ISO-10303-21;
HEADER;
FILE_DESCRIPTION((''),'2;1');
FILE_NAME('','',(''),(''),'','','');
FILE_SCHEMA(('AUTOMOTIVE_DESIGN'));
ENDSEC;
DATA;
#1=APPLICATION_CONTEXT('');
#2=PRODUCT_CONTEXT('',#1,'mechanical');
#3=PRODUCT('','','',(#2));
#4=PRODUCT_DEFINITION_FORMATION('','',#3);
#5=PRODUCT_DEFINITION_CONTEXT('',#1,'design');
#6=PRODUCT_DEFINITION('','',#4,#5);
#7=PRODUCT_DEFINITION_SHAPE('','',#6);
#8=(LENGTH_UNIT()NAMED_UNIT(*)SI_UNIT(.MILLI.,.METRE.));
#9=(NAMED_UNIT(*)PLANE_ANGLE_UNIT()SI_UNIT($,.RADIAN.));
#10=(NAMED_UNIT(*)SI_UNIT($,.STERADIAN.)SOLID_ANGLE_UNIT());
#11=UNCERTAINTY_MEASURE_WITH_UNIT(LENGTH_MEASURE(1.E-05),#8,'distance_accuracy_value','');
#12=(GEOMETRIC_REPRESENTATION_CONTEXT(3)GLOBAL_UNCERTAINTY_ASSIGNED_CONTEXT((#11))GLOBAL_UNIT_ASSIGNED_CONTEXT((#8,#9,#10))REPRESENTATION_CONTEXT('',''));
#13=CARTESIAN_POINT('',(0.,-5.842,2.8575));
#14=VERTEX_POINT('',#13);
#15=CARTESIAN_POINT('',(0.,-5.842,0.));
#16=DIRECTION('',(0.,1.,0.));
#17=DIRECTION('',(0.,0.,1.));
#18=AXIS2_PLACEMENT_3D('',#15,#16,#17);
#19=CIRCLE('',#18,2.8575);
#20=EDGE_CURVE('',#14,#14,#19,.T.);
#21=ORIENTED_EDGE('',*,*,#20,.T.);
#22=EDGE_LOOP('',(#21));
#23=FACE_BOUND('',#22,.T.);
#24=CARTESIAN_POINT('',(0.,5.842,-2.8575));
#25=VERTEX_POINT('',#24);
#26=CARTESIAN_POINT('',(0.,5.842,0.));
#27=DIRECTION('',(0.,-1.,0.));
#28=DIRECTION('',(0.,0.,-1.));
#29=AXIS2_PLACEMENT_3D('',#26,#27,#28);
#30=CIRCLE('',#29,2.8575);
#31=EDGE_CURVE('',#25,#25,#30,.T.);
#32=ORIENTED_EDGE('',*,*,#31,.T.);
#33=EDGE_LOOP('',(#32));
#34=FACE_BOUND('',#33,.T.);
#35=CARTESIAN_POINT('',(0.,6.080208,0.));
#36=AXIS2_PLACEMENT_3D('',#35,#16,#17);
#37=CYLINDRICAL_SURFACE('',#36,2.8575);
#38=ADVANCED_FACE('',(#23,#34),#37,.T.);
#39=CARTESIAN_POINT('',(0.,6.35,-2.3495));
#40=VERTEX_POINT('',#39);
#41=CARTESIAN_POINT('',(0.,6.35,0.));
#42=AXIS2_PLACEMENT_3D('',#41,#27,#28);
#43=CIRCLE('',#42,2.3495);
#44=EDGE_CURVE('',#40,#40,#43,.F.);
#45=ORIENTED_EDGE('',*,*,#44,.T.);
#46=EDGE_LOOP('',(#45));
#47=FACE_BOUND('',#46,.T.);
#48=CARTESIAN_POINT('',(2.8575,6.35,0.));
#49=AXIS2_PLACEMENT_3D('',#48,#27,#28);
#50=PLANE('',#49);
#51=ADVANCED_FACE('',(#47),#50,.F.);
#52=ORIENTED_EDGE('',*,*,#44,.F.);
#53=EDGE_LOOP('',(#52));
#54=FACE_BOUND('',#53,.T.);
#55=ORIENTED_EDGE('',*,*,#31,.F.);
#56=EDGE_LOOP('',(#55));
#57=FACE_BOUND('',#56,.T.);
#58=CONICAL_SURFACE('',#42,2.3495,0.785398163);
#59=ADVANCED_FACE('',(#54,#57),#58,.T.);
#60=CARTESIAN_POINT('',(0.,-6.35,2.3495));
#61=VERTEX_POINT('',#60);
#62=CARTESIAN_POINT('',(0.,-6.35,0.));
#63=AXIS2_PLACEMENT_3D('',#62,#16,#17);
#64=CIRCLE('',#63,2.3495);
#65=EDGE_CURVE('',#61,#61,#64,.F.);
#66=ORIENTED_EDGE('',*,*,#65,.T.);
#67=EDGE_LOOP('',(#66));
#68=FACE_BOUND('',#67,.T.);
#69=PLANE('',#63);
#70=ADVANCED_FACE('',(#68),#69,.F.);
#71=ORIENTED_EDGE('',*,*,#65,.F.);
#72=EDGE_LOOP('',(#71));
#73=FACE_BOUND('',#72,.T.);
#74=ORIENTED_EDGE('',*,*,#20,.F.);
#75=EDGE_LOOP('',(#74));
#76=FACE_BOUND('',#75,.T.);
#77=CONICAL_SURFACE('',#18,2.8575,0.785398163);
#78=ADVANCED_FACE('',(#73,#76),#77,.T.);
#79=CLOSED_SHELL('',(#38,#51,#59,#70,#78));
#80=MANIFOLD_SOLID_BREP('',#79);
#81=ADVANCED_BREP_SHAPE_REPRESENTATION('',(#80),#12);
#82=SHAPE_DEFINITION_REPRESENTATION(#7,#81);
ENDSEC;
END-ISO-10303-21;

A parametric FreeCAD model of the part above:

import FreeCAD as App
import Part
import Sketcher

V = App.Vector
Q = App.Units.Quantity


def edges_at(feature, points):
    """Names of the edges that pass closest to the given points."""
    edges = feature.Shape.Edges
    near = lambda p: min(range(len(edges)), key=lambda i: edges[i].distToShape(Part.Vertex(*p))[0])
    return sorted({f"Edge{near(p) + 1}" for p in points})

doc = App.newDocument("Part")
body = doc.addObject("PartDesign::Body", "Body")

# Sketch on XY plane
sketch1 = body.newObject("Sketcher::SketchObject", "Sketch")
sketch1.AttachmentSupport = (doc.getObject("XY_Plane"), [""])
sketch1.MapMode = "FlatFace"
sketch1.addGeometry([
    Part.LineSegment(V(0, 6.35, 0), V(0, -6.35, 0)),
    Part.LineSegment(V(0, -6.35, 0), V(2.8575, -6.35, 0)),
    Part.LineSegment(V(2.8575, -6.35, 0), V(2.8575, 6.35, 0)),
    Part.LineSegment(V(2.8575, 6.35, 0), V(0, 6.35, 0)),
], False)
sketch1.addConstraint([
    Sketcher.Constraint("Coincident", 0, 2, 1, 1),
    Sketcher.Constraint("Coincident", 1, 2, 2, 1),
    Sketcher.Constraint("Coincident", 2, 2, 3, 1),
    Sketcher.Constraint("Coincident", 3, 2, 0, 1),
    Sketcher.Constraint("Vertical", 0),
    Sketcher.Constraint("Horizontal", 1),
    Sketcher.Constraint("Vertical", 2),
    Sketcher.Constraint("Horizontal", 3),
    Sketcher.Constraint("Symmetric", 0, 2, 3, 2, -1, 1),
    Sketcher.Constraint("DistanceY", 0, 2, 0, 1, Q("0.5 in")),
    Sketcher.Constraint("DistanceX", 1, 1, 1, 2, Q("0.1125 in")),
])
revolution = body.newObject("PartDesign::Revolution", "Revolution")
revolution.Profile = sketch1
revolution.ReferenceAxis = (sketch1, ["V_Axis"])
revolution.Angle = 360
doc.recompute()

chamfer = body.newObject("PartDesign::Chamfer", "Chamfer")
chamfer.Base = (revolution, edges_at(revolution, [(-2.857, 6.35, 0), (-2.857, -6.35, 0)]))
chamfer.Size = Q("0.02 in")

doc.recompute()
